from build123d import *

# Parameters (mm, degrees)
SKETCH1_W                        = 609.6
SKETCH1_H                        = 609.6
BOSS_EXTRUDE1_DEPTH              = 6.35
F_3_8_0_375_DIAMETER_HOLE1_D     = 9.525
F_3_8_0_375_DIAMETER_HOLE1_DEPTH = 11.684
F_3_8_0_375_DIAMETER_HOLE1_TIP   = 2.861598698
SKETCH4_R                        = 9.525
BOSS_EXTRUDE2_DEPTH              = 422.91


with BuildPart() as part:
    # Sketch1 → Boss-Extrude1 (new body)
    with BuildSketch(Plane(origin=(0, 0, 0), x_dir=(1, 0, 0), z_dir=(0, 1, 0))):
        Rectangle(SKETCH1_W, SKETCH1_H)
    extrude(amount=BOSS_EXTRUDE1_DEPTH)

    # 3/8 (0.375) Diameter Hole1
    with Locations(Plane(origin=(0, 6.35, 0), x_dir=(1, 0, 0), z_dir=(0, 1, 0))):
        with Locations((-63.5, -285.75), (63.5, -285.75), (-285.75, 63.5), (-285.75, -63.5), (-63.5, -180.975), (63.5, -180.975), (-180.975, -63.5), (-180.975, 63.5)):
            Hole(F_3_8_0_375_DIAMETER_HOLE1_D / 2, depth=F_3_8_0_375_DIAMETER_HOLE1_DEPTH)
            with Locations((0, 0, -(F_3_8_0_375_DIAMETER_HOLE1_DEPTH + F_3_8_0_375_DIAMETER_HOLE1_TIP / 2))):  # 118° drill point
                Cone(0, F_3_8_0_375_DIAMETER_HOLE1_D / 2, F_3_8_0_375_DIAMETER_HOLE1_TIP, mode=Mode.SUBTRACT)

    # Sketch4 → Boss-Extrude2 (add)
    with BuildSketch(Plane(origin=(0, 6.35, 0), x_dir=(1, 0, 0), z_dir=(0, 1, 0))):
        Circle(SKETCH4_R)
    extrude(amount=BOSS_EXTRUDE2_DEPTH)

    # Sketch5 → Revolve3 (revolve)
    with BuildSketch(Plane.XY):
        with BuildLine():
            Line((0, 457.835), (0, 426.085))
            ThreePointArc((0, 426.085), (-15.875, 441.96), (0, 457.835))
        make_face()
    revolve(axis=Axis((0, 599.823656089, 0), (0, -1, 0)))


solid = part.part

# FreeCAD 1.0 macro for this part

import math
import FreeCAD as App
import Part
import Sketcher
from FreeCAD import Vector
Q = App.Units.Quantity


def add_polygon(sketch, points):
    """Adds a closed chain of lines whose ends are joined by coincident constraints."""
    first, n = sketch.GeometryCount, len(points)
    for a, b in zip(points, points[1:] + points[:1]):
        sketch.addGeometry(Part.LineSegment(App.Vector(*a, 0), App.Vector(*b, 0)), False)
    for i in range(n):
        sketch.addConstraint(Sketcher.Constraint("Coincident", first + i, 2, first + (i + 1) % n, 1))

doc = App.newDocument("Part")
body = doc.addObject("PartDesign::Body", "Body")

sketch1 = body.newObject("Sketcher::SketchObject", "Sketch")
sketch1.AttachmentSupport = (doc.getObject("XZ_Plane"), [""])
sketch1.MapMode = "FlatFace"
add_polygon(sketch1, [(-304.8, -304.8), (-304.8, 304.8), (304.8, 304.8), (304.8, -304.8)])
sketch1.addConstraint(Sketcher.Constraint("Vertical", 0))
sketch1.addConstraint(Sketcher.Constraint("Horizontal", 1))
sketch1.addConstraint(Sketcher.Constraint("Vertical", 2))
sketch1.addConstraint(Sketcher.Constraint("Horizontal", 3))
sketch1.addConstraint(Sketcher.Constraint("Symmetric", 0, 2, 2, 2, -1, 1))
sketch1.addConstraint(Sketcher.Constraint("Equal", 3, 0))
sketch1.addConstraint(Sketcher.Constraint("DistanceX", 1, 1, 1, 2, Q("24 in")))
pad1 = body.newObject("PartDesign::Pad", "Pad")
pad1.Profile = sketch1
pad1.Length = Q("0.25 in")
pad1.Reversed = True

sketch2 = body.newObject("Sketcher::SketchObject", "Sketch001")
sketch2.AttachmentSupport = (doc.getObject("XZ_Plane"), [""])
sketch2.MapMode = "FlatFace"
sketch2.AttachmentOffset = App.Placement(Vector(0, 0, -0.25 * 25.4), App.Rotation())
sketch2.addGeometry(Part.Circle(Vector(-63.5, 285.75, 0), Vector(0, 0, 1), 4.7625), False)
sketch2.addGeometry(Part.Circle(Vector(63.5, 285.75, 0), Vector(0, 0, 1), 4.7625), False)
sketch2.addGeometry(Part.Circle(Vector(-285.75, -63.5, 0), Vector(0, 0, 1), 4.7625), False)
sketch2.addGeometry(Part.Circle(Vector(-285.75, 63.5, 0), Vector(0, 0, 1), 4.7625), False)
sketch2.addGeometry(Part.Circle(Vector(-63.5, 180.975, 0), Vector(0, 0, 1), 4.7625), False)
sketch2.addGeometry(Part.Circle(Vector(63.5, 180.975, 0), Vector(0, 0, 1), 4.7625), False)
sketch2.addGeometry(Part.Circle(Vector(-180.975, 63.5, 0), Vector(0, 0, 1), 4.7625), False)
sketch2.addGeometry(Part.Circle(Vector(-180.975, -63.5, 0), Vector(0, 0, 1), 4.7625), False)
sketch2.addConstraint(Sketcher.Constraint("Equal", 0, 1))
sketch2.addConstraint(Sketcher.Constraint("Equal", 1, 2))
sketch2.addConstraint(Sketcher.Constraint("Equal", 2, 3))
sketch2.addConstraint(Sketcher.Constraint("Equal", 3, 4))
sketch2.addConstraint(Sketcher.Constraint("Equal", 4, 5))
sketch2.addConstraint(Sketcher.Constraint("Equal", 5, 6))
sketch2.addConstraint(Sketcher.Constraint("Equal", 6, 7))
sketch2.addConstraint(Sketcher.Constraint("Symmetric", 0, 3, 1, 3, -2))
sketch2.addConstraint(Sketcher.Constraint("Symmetric", 4, 3, 5, 3, -2))
sketch2.addConstraint(Sketcher.Constraint("Symmetric", 2, 3, 3, 3, -1))
sketch2.addConstraint(Sketcher.Constraint("Symmetric", 6, 3, 7, 3, -1))
sketch2.addConstraint(Sketcher.Constraint("Horizontal", 3, 3, 6, 3))
sketch2.addConstraint(Sketcher.Constraint("Vertical", 0, 3, 4, 3))
sketch2.addConstraint(Sketcher.Constraint("Diameter", 0, Q("0.375 in")))
sketch2.addConstraint(Sketcher.Constraint("DistanceX", 0, 3, 1, 3, Q("5 in")))
sketch2.addConstraint(Sketcher.Constraint("DistanceY", 2, 3, 3, 3, Q("5 in")))
sketch2.addConstraint(Sketcher.Constraint("DistanceY", -1, 1, 0, 3, Q("11.25 in")))
sketch2.addConstraint(Sketcher.Constraint("DistanceX", 2, 3, -1, 1, Q("11.25 in")))
sketch2.addConstraint(Sketcher.Constraint("DistanceY", -1, 1, 4, 3, Q("7.125 in")))
sketch2.addConstraint(Sketcher.Constraint("DistanceX", 6, 3, -1, 1, Q("7.125 in")))
doc.recompute()
hole = body.newObject("PartDesign::Hole", "Hole")
hole.Profile = sketch2
hole.ThreadType = "None"
hole.Diameter = Q("0.375 in")
hole.DepthType = "Dimension"
hole.Depth = Q("0.46 in")
hole.DrillPoint = "Angled"
hole.DrillPointAngle = 118
hole.Reversed = True

sketch3 = body.newObject("Sketcher::SketchObject", "Sketch002")
sketch3.AttachmentSupport = (doc.getObject("XZ_Plane"), [""])
sketch3.MapMode = "FlatFace"
sketch3.AttachmentOffset = App.Placement(Vector(0, 0, -0.25 * 25.4), App.Rotation())
sketch3.addGeometry(Part.Circle(Vector(0, 0, 0), Vector(0, 0, 1), 9.525), False)
sketch3.addConstraint(Sketcher.Constraint("Coincident", 0, 3, -1, 1))
sketch3.addConstraint(Sketcher.Constraint("Diameter", 0, Q("0.75 in")))
pad2 = body.newObject("PartDesign::Pad", "Pad001")
pad2.Profile = sketch3
pad2.Length = Q("16.65 in")
pad2.Reversed = True

sketch4 = body.newObject("Sketcher::SketchObject", "Sketch003")
sketch4.AttachmentSupport = (doc.getObject("XY_Plane"), [""])
sketch4.MapMode = "FlatFace"
sketch4.addGeometry(Part.LineSegment(Vector(0, 426.085, 0), Vector(0, 457.835, 0)), False)
sketch4.addGeometry(Part.ArcOfCircle(Part.Circle(Vector(0, 441.96, 0), Vector(0, 0, 1), 15.875), math.radians(90), math.radians(270)), False)
sketch4.addConstraint(Sketcher.Constraint("Coincident", 0, 1, 1, 2))
sketch4.addConstraint(Sketcher.Constraint("Coincident", 1, 1, 0, 2))
sketch4.addConstraint(Sketcher.Constraint("Vertical", 0))
sketch4.addConstraint(Sketcher.Constraint("PointOnObject", 1, 3, -2))
sketch4.addConstraint(Sketcher.Constraint("PointOnObject", 0, 1, -2))
sketch4.addConstraint(Sketcher.Constraint("Radius", 1, Q("0.625 in")))
sketch4.addConstraint(Sketcher.Constraint("DistanceY", -1, 1, 1, 3, Q("17.4 in")))
revolution = body.newObject("PartDesign::Revolution", "Revolution")
revolution.Profile = sketch4
revolution.ReferenceAxis = (sketch4, ["V_Axis"])
revolution.Angle = 360

doc.recompute()
